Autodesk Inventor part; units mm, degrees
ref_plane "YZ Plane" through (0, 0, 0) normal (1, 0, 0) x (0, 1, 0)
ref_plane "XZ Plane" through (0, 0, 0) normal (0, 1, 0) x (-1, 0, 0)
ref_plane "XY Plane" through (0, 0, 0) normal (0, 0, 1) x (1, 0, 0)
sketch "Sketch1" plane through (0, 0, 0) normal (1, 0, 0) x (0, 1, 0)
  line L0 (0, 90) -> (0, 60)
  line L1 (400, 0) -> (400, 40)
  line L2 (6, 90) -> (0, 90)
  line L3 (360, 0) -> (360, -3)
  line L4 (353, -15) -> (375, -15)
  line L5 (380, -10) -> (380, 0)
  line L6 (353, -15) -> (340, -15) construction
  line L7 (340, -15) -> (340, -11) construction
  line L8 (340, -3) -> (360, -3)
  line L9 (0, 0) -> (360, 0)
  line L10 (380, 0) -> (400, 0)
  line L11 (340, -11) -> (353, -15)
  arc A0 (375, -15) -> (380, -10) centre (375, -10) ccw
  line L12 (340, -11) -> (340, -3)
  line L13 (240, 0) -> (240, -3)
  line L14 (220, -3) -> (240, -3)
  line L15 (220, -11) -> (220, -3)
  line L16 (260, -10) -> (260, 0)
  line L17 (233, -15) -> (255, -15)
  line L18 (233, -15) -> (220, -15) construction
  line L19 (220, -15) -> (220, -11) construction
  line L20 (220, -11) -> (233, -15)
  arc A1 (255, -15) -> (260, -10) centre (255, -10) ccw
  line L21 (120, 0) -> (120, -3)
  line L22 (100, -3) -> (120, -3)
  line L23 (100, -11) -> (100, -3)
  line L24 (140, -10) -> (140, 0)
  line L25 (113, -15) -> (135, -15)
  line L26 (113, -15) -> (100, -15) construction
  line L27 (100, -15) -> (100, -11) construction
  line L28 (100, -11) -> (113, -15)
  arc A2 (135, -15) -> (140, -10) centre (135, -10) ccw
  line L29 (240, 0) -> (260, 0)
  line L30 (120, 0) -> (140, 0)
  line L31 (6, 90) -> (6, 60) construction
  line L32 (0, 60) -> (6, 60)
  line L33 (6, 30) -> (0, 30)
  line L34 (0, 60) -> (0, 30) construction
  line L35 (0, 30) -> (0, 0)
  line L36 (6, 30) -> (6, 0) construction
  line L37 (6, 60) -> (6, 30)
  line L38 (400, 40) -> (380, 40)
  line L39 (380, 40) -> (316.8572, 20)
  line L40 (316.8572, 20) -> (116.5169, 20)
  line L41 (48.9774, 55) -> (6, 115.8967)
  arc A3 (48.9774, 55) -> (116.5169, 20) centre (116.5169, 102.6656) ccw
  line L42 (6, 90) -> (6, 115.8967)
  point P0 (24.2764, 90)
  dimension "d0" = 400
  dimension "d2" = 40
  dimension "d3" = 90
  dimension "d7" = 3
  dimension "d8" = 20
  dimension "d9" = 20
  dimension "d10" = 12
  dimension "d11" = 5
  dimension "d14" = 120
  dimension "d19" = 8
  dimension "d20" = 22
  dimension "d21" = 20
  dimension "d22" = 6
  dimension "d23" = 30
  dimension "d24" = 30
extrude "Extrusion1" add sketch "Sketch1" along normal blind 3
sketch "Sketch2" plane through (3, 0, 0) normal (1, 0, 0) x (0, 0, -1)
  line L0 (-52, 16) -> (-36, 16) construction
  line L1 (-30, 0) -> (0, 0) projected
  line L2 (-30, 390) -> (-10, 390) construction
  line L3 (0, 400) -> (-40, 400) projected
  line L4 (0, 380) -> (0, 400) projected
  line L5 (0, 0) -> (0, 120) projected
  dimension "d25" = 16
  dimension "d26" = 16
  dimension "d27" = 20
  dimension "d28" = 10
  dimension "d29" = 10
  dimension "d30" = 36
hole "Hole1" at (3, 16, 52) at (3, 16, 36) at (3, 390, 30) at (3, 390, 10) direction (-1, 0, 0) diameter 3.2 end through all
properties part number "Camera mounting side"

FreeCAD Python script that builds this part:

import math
import FreeCAD as App
import Part
import Sketcher

doc = App.newDocument("Part")
params = doc.addObject("Spreadsheet::Sheet", "Params")
for row, (alias, value) in enumerate([
    ("sketch1_radius", "5 mm"),
    ("sketch1_width", "6 mm"),
    ("sketch1_width2", "120 mm"),
    ("sketch1_width3", "20 mm"),
    ("sketch1_width4", "22 mm"),
    ("pad1_length", "3 mm"),
    ("sketch2_diameter", "3.2 mm"),
    ("hole_diameter", "3.2 mm"),
], start=1):
    params.set(f"A{row}", alias)
    params.set(f"B{row}", "=" + value)
    params.setAlias(f"B{row}", alias)

body = doc.addObject("PartDesign::Body", "Body")

# Sketch on YZ plane
sketch1 = body.newObject("Sketcher::SketchObject", "Sketch")
sketch1.AttachmentSupport = (doc.getObject("YZ_Plane"), [""])
sketch1.MapMode = "FlatFace"
sketch1.addGeometry([
    Part.LineSegment(App.Vector(6, 90, 0), App.Vector(0, 90, 0)),  # 0
    Part.LineSegment(App.Vector(0, 90, 0), App.Vector(0, 60, 0)),  # 1
    Part.LineSegment(App.Vector(0, 60, 0), App.Vector(6, 60, 0)),  # 2
    Part.LineSegment(App.Vector(6, 60, 0), App.Vector(6, 30, 0)),  # 3
    Part.LineSegment(App.Vector(6, 30, 0), App.Vector(0, 30, 0)),  # 4
    Part.LineSegment(App.Vector(0, 30, 0), App.Vector(0, 0, 0)),  # 5
    Part.LineSegment(App.Vector(0, 0, 0), App.Vector(120, 0, 0)),  # 6
    Part.LineSegment(App.Vector(120, 0, 0), App.Vector(120, -3, 0)),  # 7
    Part.LineSegment(App.Vector(120, -3, 0), App.Vector(100, -3, 0)),  # 8
    Part.LineSegment(App.Vector(100, -3, 0), App.Vector(100, -11, 0)),  # 9
    Part.LineSegment(App.Vector(100, -11, 0), App.Vector(113, -15, 0)),  # 10
    Part.LineSegment(App.Vector(113, -15, 0), App.Vector(135, -15, 0)),  # 11
    Part.ArcOfCircle(Part.Circle(App.Vector(135, -10, 0), App.Vector(0, 0, 1), 5), math.radians(-90), math.radians(0)),  # 12
    Part.LineSegment(App.Vector(140, -10, 0), App.Vector(140, 0, 0)),  # 13
    Part.LineSegment(App.Vector(140, 0, 0), App.Vector(240, 0, 0)),  # 14
    Part.LineSegment(App.Vector(240, 0, 0), App.Vector(240, -3, 0)),  # 15
    Part.LineSegment(App.Vector(240, -3, 0), App.Vector(220, -3, 0)),  # 16
    Part.LineSegment(App.Vector(220, -3, 0), App.Vector(220, -11, 0)),  # 17
    Part.LineSegment(App.Vector(220, -11, 0), App.Vector(233, -15, 0)),  # 18
    Part.LineSegment(App.Vector(233, -15, 0), App.Vector(255, -15, 0)),  # 19
    Part.ArcOfCircle(Part.Circle(App.Vector(255, -10, 0), App.Vector(0, 0, 1), 5), math.radians(-90), math.radians(0)),  # 20
    Part.LineSegment(App.Vector(260, -10, 0), App.Vector(260, 0, 0)),  # 21
    Part.LineSegment(App.Vector(260, 0, 0), App.Vector(360, 0, 0)),  # 22
    Part.LineSegment(App.Vector(360, 0, 0), App.Vector(360, -3, 0)),  # 23
    Part.LineSegment(App.Vector(360, -3, 0), App.Vector(340, -3, 0)),  # 24
    Part.LineSegment(App.Vector(340, -3, 0), App.Vector(340, -11, 0)),  # 25
    Part.LineSegment(App.Vector(340, -11, 0), App.Vector(353, -15, 0)),  # 26
    Part.LineSegment(App.Vector(353, -15, 0), App.Vector(375, -15, 0)),  # 27
    Part.ArcOfCircle(Part.Circle(App.Vector(375, -10, 0), App.Vector(0, 0, 1), 5), math.radians(-90), math.radians(0)),  # 28
    Part.LineSegment(App.Vector(380, -10, 0), App.Vector(380, 0, 0)),  # 29
    Part.LineSegment(App.Vector(380, 0, 0), App.Vector(400, 0, 0)),  # 30
    Part.LineSegment(App.Vector(400, 0, 0), App.Vector(400, 40, 0)),  # 31
    Part.LineSegment(App.Vector(400, 40, 0), App.Vector(380, 40, 0)),  # 32
    Part.LineSegment(App.Vector(380, 40, 0), App.Vector(316.9, 20, 0)),  # 33
    Part.LineSegment(App.Vector(316.9, 20, 0), App.Vector(116.5, 20, 0)),  # 34
    Part.ArcOfCircle(Part.Circle(App.Vector(116.5, 102.7, 0), App.Vector(0, 0, 1), 82.7), math.radians(-145), math.radians(-90)),  # 35
    Part.LineSegment(App.Vector(49, 55, 0), App.Vector(6, 115.9, 0)),  # 36
    Part.LineSegment(App.Vector(6, 115.9, 0), App.Vector(6, 90, 0)),  # 37
], False)
sketch1.addConstraint([
    Sketcher.Constraint("Coincident", 0, 2, 1, 1),
    Sketcher.Constraint("Coincident", 1, 2, 2, 1),
    Sketcher.Constraint("Coincident", 2, 2, 3, 1),
    Sketcher.Constraint("Coincident", 3, 2, 4, 1),
    Sketcher.Constraint("Coincident", 4, 2, 5, 1),
    Sketcher.Constraint("Coincident", 5, 2, 6, 1),
    Sketcher.Constraint("Coincident", 6, 2, 7, 1),
    Sketcher.Constraint("Coincident", 7, 2, 8, 1),
    Sketcher.Constraint("Coincident", 8, 2, 9, 1),
    Sketcher.Constraint("Coincident", 9, 2, 10, 1),
    Sketcher.Constraint("Coincident", 10, 2, 11, 1),
    Sketcher.Constraint("Tangent", 11, 2, 12, 1),
    Sketcher.Constraint("Tangent", 12, 2, 13, 1),
    Sketcher.Constraint("Coincident", 13, 2, 14, 1),
    Sketcher.Constraint("Coincident", 14, 2, 15, 1),
    Sketcher.Constraint("Coincident", 15, 2, 16, 1),
    Sketcher.Constraint("Coincident", 16, 2, 17, 1),
    Sketcher.Constraint("Coincident", 17, 2, 18, 1),
    Sketcher.Constraint("Coincident", 18, 2, 19, 1),
    Sketcher.Constraint("Tangent", 19, 2, 20, 1),
    Sketcher.Constraint("Tangent", 20, 2, 21, 1),
    Sketcher.Constraint("Coincident", 21, 2, 22, 1),
    Sketcher.Constraint("Coincident", 22, 2, 23, 1),
    Sketcher.Constraint("Coincident", 23, 2, 24, 1),
    Sketcher.Constraint("Coincident", 24, 2, 25, 1),
    Sketcher.Constraint("Coincident", 25, 2, 26, 1),
    Sketcher.Constraint("Coincident", 26, 2, 27, 1),
    Sketcher.Constraint("Tangent", 27, 2, 28, 1),
    Sketcher.Constraint("Tangent", 28, 2, 29, 1),
    Sketcher.Constraint("Coincident", 29, 2, 30, 1),
    Sketcher.Constraint("Coincident", 30, 2, 31, 1),
    Sketcher.Constraint("Coincident", 31, 2, 32, 1),
    Sketcher.Constraint("Coincident", 32, 2, 33, 1),
    Sketcher.Constraint("Coincident", 33, 2, 34, 1),
    Sketcher.Constraint("Tangent", 34, 2, 35, 2),
    Sketcher.Constraint("Tangent", 35, 1, 36, 1),
    Sketcher.Constraint("Coincident", 36, 2, 37, 1),
    Sketcher.Constraint("Coincident", 37, 2, 0, 1),
    Sketcher.Constraint("Horizontal", 0),
    Sketcher.Constraint("Vertical", 1),
    Sketcher.Constraint("Horizontal", 2),
    Sketcher.Constraint("Vertical", 3),
    Sketcher.Constraint("Horizontal", 4),
    Sketcher.Constraint("Vertical", 5),
    Sketcher.Constraint("Horizontal", 6),
    Sketcher.Constraint("Vertical", 7),
    Sketcher.Constraint("Horizontal", 8),
    Sketcher.Constraint("Vertical", 9),
    Sketcher.Constraint("Horizontal", 11),
    Sketcher.Constraint("Vertical", 13),
    Sketcher.Constraint("Horizontal", 14),
    Sketcher.Constraint("Vertical", 15),
    Sketcher.Constraint("Horizontal", 16),
    Sketcher.Constraint("Vertical", 17),
    Sketcher.Constraint("Horizontal", 19),
    Sketcher.Constraint("Vertical", 21),
    Sketcher.Constraint("Horizontal", 22),
    Sketcher.Constraint("Vertical", 23),
    Sketcher.Constraint("Horizontal", 24),
    Sketcher.Constraint("Vertical", 25),
    Sketcher.Constraint("Horizontal", 27),
    Sketcher.Constraint("Vertical", 29),
    Sketcher.Constraint("Horizontal", 30),
    Sketcher.Constraint("Vertical", 31),
    Sketcher.Constraint("Horizontal", 32),
    Sketcher.Constraint("Horizontal", 34),
    Sketcher.Constraint("Vertical", 37),
    Sketcher.Constraint("Coincident", 5, 2, -1, 1),
    Sketcher.Constraint("Equal", 12, 20),
    Sketcher.Constraint("Equal", 20, 28),
    Sketcher.Constraint("PointOnObject", 0, 2, -2),
    Sketcher.Constraint("PointOnObject", 13, 2, -1),
    Sketcher.Constraint("PointOnObject", 21, 2, -1),
    Sketcher.Constraint("PointOnObject", 29, 2, -1),
    Sketcher.Constraint("Parallel", 10, 18),
    Sketcher.Constraint("Parallel", 18, 26),
    Sketcher.Constraint("Horizontal", 12, 3, 20, 3),
    Sketcher.Constraint("Horizontal", 20, 3, 28, 3),
    Sketcher.Constraint("Horizontal", 8, 2, 15, 2),
    Sketcher.Constraint("Horizontal", 9, 2, 17, 2),
    Sketcher.Constraint("Horizontal", 16, 2, 23, 2),
    Sketcher.Constraint("Horizontal", 17, 2, 25, 2),
    Sketcher.Constraint("Vertical", 29, 2, 32, 2),
    Sketcher.Constraint("Vertical", 3, 2, 36, 2),
    Sketcher.Constraint("Equal", 8, 16),
    Sketcher.Constraint("Equal", 11, 19),
    Sketcher.Constraint("Equal", 14, 22),
    Sketcher.Constraint("Equal", 16, 24),
    Sketcher.Constraint("Equal", 19, 27),
    Sketcher.Constraint("Equal", 24, 30),
    Sketcher.Constraint("Equal", 1, 3),
    Sketcher.Constraint("Equal", 3, 5),
    Sketcher.Constraint("Radius", 12, 5.0),
    Sketcher.Constraint("DistanceX", 0, 2, 0, 1, 6.0),
    Sketcher.Constraint("DistanceX", 6, 1, 6, 2, 120.0),
    Sketcher.Constraint("DistanceX", 8, 2, 8, 1, 20.0),
    Sketcher.Constraint("DistanceX", 11, 1, 11, 2, 22.0),
    Sketcher.Constraint("DistanceY", 1, 2, 1, 1, 30.0),
    Sketcher.Constraint("DistanceY", 7, 2, 7, 1, 3.0),
    Sketcher.Constraint("DistanceY", 9, 2, 9, 1, 8.0),
    Sketcher.Constraint("DistanceY", 13, 1, 13, 2, 10.0),
    Sketcher.Constraint("DistanceY", 31, 1, 31, 2, 40.0),
    Sketcher.Constraint("DistanceX", -1, 1, 30, 2, 400.0),
    Sketcher.Constraint("DistanceY", -1, 1, 33, 2, 20.0),
    Sketcher.Constraint("DistanceX", 12, 3, 20, 3, 120.0),
    Sketcher.Constraint("DistanceY", 35, 1, 2, 2, 5.0),
    Sketcher.Constraint("Radius", 35, 82.6656),
    Sketcher.Constraint("Distance", 36, 74.535),
    Sketcher.Constraint("DistanceX", 34, 2, 34, 1, 200.3403),
])
sketch1.setExpression("Constraints[92]", "Params.sketch1_radius")
sketch1.setExpression("Constraints[93]", "Params.sketch1_width")
sketch1.setExpression("Constraints[94]", "Params.sketch1_width2")
sketch1.setExpression("Constraints[95]", "Params.sketch1_width3")
sketch1.setExpression("Constraints[96]", "Params.sketch1_width4")
pad1 = body.newObject("PartDesign::Pad", "Pad")
pad1.Profile = sketch1
pad1.setExpression("Length", "Params.pad1_length")

# Sketch on YZ plane
sketch2 = body.newObject("Sketcher::SketchObject", "Sketch001")
sketch2.AttachmentSupport = (doc.getObject("YZ_Plane"), [""])
sketch2.MapMode = "FlatFace"
sketch2.AttachmentOffset = App.Placement(App.Vector(0, 0, 3), App.Rotation())
sketch2.addGeometry([
    Part.Circle(App.Vector(16, 52, 0), App.Vector(0, 0, 1), 1.6),
    Part.Circle(App.Vector(16, 36, 0), App.Vector(0, 0, 1), 1.6),
    Part.Circle(App.Vector(390, 30, 0), App.Vector(0, 0, 1), 1.6),
    Part.Circle(App.Vector(390, 10, 0), App.Vector(0, 0, 1), 1.6),
], False)
sketch2.addConstraint([
    Sketcher.Constraint("Equal", 0, 1),
    Sketcher.Constraint("Equal", 1, 2),
    Sketcher.Constraint("Equal", 2, 3),
    Sketcher.Constraint("Vertical", 0, 3, 1, 3),
    Sketcher.Constraint("Vertical", 2, 3, 3, 3),
    Sketcher.Constraint("Diameter", 0, 3.2),
    Sketcher.Constraint("DistanceX", -1, 1, 0, 3, 16.0),
    Sketcher.Constraint("DistanceY", -1, 1, 0, 3, 52.0),
    Sketcher.Constraint("DistanceY", -1, 1, 1, 3, 36.0),
    Sketcher.Constraint("DistanceX", -1, 1, 2, 3, 390.0),
    Sketcher.Constraint("DistanceY", -1, 1, 2, 3, 30.0),
    Sketcher.Constraint("DistanceY", -1, 1, 3, 3, 10.0),
])
sketch2.setExpression("Constraints[5]", "Params.sketch2_diameter")
doc.recompute()
hole = body.newObject("PartDesign::Hole", "Hole")
hole.Profile = sketch2
hole.ThreadType = "None"
hole.setExpression("Diameter", "Params.hole_diameter")
hole.DepthType = "ThroughAll"

doc.recompute()
